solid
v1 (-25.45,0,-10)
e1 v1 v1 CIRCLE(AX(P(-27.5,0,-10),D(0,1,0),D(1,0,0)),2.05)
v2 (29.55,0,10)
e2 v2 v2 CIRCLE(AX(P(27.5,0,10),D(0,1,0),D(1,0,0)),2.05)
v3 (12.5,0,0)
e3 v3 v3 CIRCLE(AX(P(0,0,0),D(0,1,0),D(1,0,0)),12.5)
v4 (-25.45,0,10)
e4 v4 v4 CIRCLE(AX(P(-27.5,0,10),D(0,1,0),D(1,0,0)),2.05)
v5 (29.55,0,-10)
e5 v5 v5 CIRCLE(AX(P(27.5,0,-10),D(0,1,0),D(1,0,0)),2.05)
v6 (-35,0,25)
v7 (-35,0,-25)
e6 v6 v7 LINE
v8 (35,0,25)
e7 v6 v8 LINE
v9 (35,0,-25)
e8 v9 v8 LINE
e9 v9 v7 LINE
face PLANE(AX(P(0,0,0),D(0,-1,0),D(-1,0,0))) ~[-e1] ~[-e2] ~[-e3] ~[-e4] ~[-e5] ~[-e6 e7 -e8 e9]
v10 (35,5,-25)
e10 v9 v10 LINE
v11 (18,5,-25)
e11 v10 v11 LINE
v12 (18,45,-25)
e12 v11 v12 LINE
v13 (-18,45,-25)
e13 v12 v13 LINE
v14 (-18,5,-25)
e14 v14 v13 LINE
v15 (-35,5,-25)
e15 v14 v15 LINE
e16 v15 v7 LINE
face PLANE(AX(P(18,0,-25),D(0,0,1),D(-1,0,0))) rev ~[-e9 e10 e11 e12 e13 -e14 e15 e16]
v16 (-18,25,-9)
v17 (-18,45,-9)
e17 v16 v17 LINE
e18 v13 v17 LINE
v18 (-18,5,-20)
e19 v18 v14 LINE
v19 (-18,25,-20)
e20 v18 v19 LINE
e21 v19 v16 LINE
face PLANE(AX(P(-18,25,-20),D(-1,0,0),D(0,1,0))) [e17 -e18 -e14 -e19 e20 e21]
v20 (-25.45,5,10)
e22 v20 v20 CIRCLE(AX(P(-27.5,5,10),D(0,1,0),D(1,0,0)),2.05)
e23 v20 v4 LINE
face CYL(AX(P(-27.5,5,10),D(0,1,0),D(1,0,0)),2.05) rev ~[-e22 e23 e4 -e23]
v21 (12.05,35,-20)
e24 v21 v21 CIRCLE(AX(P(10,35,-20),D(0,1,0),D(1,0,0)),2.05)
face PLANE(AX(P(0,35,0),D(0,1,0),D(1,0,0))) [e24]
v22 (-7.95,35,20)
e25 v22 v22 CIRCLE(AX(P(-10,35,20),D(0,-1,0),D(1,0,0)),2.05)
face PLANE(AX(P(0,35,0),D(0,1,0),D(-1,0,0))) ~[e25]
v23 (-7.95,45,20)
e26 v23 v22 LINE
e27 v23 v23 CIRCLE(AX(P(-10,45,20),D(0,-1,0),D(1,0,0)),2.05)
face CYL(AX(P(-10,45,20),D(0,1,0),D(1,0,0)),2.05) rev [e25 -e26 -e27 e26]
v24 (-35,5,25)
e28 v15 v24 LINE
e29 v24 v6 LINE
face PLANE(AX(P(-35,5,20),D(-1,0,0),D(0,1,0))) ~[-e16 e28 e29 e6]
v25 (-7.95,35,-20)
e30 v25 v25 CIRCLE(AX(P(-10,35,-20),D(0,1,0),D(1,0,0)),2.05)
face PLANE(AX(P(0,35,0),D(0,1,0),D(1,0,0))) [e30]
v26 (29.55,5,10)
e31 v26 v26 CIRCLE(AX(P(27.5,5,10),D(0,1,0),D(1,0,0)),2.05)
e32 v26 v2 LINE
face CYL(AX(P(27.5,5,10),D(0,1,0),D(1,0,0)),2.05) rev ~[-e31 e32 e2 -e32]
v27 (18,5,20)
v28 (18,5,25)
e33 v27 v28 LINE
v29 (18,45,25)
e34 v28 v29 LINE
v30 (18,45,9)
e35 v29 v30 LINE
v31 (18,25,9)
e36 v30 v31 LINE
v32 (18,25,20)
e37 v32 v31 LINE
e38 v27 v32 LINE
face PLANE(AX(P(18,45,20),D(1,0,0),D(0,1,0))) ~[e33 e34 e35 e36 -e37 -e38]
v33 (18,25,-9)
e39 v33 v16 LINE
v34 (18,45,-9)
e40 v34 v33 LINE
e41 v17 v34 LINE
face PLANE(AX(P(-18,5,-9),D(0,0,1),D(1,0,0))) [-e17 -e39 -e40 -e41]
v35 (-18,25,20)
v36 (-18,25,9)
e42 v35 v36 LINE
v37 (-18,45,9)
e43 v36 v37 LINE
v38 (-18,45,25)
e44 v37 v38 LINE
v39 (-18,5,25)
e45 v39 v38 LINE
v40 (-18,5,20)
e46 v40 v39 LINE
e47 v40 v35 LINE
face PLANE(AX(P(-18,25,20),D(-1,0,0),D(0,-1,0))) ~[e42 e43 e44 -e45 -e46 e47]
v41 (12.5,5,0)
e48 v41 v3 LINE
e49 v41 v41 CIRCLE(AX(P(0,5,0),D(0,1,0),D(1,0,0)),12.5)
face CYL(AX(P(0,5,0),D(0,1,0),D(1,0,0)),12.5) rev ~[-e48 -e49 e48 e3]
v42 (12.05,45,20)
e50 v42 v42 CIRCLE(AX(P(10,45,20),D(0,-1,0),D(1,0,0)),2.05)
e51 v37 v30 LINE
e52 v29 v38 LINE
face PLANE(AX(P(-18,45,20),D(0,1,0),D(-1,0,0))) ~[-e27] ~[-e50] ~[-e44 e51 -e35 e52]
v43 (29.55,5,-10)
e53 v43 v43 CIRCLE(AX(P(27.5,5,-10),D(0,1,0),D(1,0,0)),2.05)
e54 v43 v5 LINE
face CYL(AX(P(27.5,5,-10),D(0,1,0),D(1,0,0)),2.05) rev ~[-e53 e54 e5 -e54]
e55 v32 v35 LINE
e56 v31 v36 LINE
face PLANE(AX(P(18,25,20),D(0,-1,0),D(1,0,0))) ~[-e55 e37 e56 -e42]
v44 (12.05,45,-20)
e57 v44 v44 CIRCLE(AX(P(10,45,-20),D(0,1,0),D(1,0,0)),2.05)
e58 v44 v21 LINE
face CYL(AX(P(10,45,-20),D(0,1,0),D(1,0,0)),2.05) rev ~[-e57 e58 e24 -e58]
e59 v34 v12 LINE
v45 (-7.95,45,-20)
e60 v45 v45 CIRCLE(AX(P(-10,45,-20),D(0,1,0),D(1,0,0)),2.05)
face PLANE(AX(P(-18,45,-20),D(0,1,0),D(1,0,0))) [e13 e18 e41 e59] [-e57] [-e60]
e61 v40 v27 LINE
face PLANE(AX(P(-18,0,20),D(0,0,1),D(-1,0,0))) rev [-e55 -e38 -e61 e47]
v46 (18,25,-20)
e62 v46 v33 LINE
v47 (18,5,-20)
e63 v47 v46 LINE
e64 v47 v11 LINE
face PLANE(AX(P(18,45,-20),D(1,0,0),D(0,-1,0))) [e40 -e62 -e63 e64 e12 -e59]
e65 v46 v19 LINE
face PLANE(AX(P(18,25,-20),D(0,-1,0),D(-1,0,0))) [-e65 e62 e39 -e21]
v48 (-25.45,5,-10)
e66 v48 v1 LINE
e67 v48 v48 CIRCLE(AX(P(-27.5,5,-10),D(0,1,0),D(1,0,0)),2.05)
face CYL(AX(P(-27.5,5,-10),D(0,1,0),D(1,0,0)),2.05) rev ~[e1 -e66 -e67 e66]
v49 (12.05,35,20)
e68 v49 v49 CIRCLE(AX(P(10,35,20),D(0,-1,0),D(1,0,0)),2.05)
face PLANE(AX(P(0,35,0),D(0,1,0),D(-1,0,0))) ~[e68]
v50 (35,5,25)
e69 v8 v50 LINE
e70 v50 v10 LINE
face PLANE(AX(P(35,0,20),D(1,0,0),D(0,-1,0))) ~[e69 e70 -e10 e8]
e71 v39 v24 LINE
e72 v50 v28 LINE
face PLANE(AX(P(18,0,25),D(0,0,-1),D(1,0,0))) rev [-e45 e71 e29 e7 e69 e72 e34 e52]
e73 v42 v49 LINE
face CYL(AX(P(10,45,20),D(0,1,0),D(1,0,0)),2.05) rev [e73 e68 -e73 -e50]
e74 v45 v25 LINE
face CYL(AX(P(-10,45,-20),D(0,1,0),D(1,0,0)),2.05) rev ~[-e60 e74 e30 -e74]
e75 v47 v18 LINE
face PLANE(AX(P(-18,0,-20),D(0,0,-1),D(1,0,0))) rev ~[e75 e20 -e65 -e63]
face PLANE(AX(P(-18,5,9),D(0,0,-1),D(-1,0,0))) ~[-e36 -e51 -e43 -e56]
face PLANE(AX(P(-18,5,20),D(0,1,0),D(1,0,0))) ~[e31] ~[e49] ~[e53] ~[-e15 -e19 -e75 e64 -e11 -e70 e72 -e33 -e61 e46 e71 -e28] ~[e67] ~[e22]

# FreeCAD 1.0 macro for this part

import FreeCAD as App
import Part
import Sketcher

V = App.Vector


def add_polygon(sketch, points):
    """Adds a closed chain of lines whose ends are joined by coincident constraints."""
    first, n = sketch.GeometryCount, len(points)
    for a, b in zip(points, points[1:] + points[:1]):
        sketch.addGeometry(Part.LineSegment(App.Vector(*a, 0), App.Vector(*b, 0)), False)
    for i in range(n):
        sketch.addConstraint(Sketcher.Constraint("Coincident", first + i, 2, first + (i + 1) % n, 1))

doc = App.newDocument("Part")
params = doc.addObject("Spreadsheet::Sheet", "Params")
for row, (alias, value) in enumerate([
    ("sketch1_width", "70 mm"),
    ("sketch1_height", "40 mm"),
    ("pad1_length", "5 mm"),
    ("sketch2_diameter", "4.1 mm"),
    ("pocket1_length", "5 mm"),
    ("sketch3_diameter", "25 mm"),
    ("pocket2_length", "5 mm"),
    ("sketch4_width", "36 mm"),
    ("sketch4_height", "5 mm"),
    ("pad2_length", "45 mm"),
    ("sketch5_height", "20 mm"),
    ("sketch5_width", "36 mm"),
    ("pad3_length", "11 mm"),
    ("sketch6_width", "17 mm"),
    ("sketch6_height", "5 mm"),
    ("pad4_length", "5 mm"),
    ("sketch7_diameter", "4.1 mm"),
    ("pocket3_length", "10 mm"),
], start=1):
    params.set(f"A{row}", alias)
    params.set(f"B{row}", "=" + value)
    params.setAlias(f"B{row}", alias)

body = doc.addObject("PartDesign::Body", "Body")

# Sketch on XZ plane
sketch1 = body.newObject("Sketcher::SketchObject", "Sketch")
sketch1.AttachmentSupport = (doc.getObject("XZ_Plane"), [""])
sketch1.MapMode = "FlatFace"
add_polygon(sketch1, [(-35, -20), (-35, 20), (35, 20), (35, -20)])  # lines 0-3
sketch1.addConstraint(Sketcher.Constraint("Vertical", 0))
sketch1.addConstraint(Sketcher.Constraint("Horizontal", 1))
sketch1.addConstraint(Sketcher.Constraint("Vertical", 2))
sketch1.addConstraint(Sketcher.Constraint("Horizontal", 3))
sketch1.addConstraint(Sketcher.Constraint("Symmetric", 0, 2, 2, 2, -1, 1))
sketch1.addConstraint(Sketcher.Constraint("DistanceX", 1, 1, 1, 2, 70.0))
sketch1.addConstraint(Sketcher.Constraint("DistanceY", 0, 1, 0, 2, 40.0))
sketch1.setExpression("Constraints[9]", "Params.sketch1_width")
sketch1.setExpression("Constraints[10]", "Params.sketch1_height")
pad1 = body.newObject("PartDesign::Pad", "Pad")
pad1.Profile = sketch1
pad1.setExpression("Length", "Params.pad1_length")
pad1.Reversed = True

# Sketch on XZ plane
sketch2 = body.newObject("Sketcher::SketchObject", "Sketch001")
sketch2.AttachmentSupport = (doc.getObject("XZ_Plane"), [""])
sketch2.MapMode = "FlatFace"
sketch2.AttachmentOffset = App.Placement(V(0, 0, -5), App.Rotation())
sketch2.addGeometry(Part.Circle(V(27.5, 10, 0), V(0, 0, 1), 2), False)
sketch2.addGeometry(Part.Circle(V(27.5, -10, 0), V(0, 0, 1), 2), False)
sketch2.addGeometry(Part.Circle(V(-27.5, -10, 0), V(0, 0, 1), 2), False)
sketch2.addGeometry(Part.Circle(V(-27.5, 10, 0), V(0, 0, 1), 2), False)
sketch2.addConstraint(Sketcher.Constraint("Equal", 0, 1))
sketch2.addConstraint(Sketcher.Constraint("Equal", 1, 2))
sketch2.addConstraint(Sketcher.Constraint("Equal", 2, 3))
sketch2.addConstraint(Sketcher.Constraint("Symmetric", 0, 3, 2, 3, -1, 1))
sketch2.addConstraint(Sketcher.Constraint("Symmetric", 1, 3, 3, 3, -1, 1))
sketch2.addConstraint(Sketcher.Constraint("Symmetric", 1, 3, 2, 3, -2))
sketch2.addConstraint(Sketcher.Constraint("Diameter", 0, 4.1))
sketch2.addConstraint(Sketcher.Constraint("DistanceY", -1, 1, 0, 3, 10.0))
sketch2.addConstraint(Sketcher.Constraint("DistanceX", -1, 1, 0, 3, 27.5))
sketch2.setExpression("Constraints[6]", "Params.sketch2_diameter")
pocket1 = body.newObject("PartDesign::Pocket", "Pocket")
pocket1.Profile = sketch2
pocket1.setExpression("Length", "Params.pocket1_length")
pocket1.Reversed = True

# Sketch on XZ plane
sketch3 = body.newObject("Sketcher::SketchObject", "Sketch002")
sketch3.AttachmentSupport = (doc.getObject("XZ_Plane"), [""])
sketch3.MapMode = "FlatFace"
sketch3.AttachmentOffset = App.Placement(V(0, 0, -5), App.Rotation())
sketch3.addGeometry(Part.Circle(V(0, 0, 0), V(0, 0, 1), 12), False)
sketch3.addConstraint(Sketcher.Constraint("Coincident", 0, 3, -1, 1))
sketch3.addConstraint(Sketcher.Constraint("Diameter", 0, 25.0))
sketch3.setExpression("Constraints[1]", "Params.sketch3_diameter")
pocket2 = body.newObject("PartDesign::Pocket", "Pocket001")
pocket2.Profile = sketch3
pocket2.setExpression("Length", "Params.pocket2_length")
pocket2.Reversed = True

# Sketch on XZ plane
sketch4 = body.newObject("Sketcher::SketchObject", "Sketch003")
sketch4.AttachmentSupport = (doc.getObject("XZ_Plane"), [""])
sketch4.MapMode = "FlatFace"
add_polygon(sketch4, [(-18, -25), (18, -25), (18, -20), (-18, -20)])  # lines 0-3
sketch4.addConstraint(Sketcher.Constraint("Horizontal", 0))
sketch4.addConstraint(Sketcher.Constraint("Vertical", 1))
sketch4.addConstraint(Sketcher.Constraint("Horizontal", 2))
sketch4.addConstraint(Sketcher.Constraint("Vertical", 3))
sketch4.addConstraint(Sketcher.Constraint("DistanceX", 0, 1, 0, 2, 36.0))
sketch4.addConstraint(Sketcher.Constraint("DistanceY", 1, 1, 1, 2, 5.0))
sketch4.addConstraint(Sketcher.Constraint("DistanceX", -1, 1, 0, 2, 18.0))
sketch4.addConstraint(Sketcher.Constraint("DistanceY", 0, 2, -1, 1, 25.0))
sketch4.setExpression("Constraints[8]", "Params.sketch4_width")
sketch4.setExpression("Constraints[9]", "Params.sketch4_height")
pad2 = body.newObject("PartDesign::Pad", "Pad001")
pad2.Profile = sketch4
pad2.setExpression("Length", "Params.pad2_length")
pad2.Reversed = True

# Sketch on XY plane
sketch5 = body.newObject("Sketcher::SketchObject", "Sketch004")
sketch5.AttachmentSupport = (doc.getObject("XY_Plane"), [""])
sketch5.MapMode = "FlatFace"
sketch5.AttachmentOffset = App.Placement(V(0, 0, -20), App.Rotation())
add_polygon(sketch5, [(18, 45), (-18, 45), (-18, 25), (18, 25)])  # lines 0-3
sketch5.addConstraint(Sketcher.Constraint("Horizontal", 0))
sketch5.addConstraint(Sketcher.Constraint("Vertical", 1))
sketch5.addConstraint(Sketcher.Constraint("Horizontal", 2))
sketch5.addConstraint(Sketcher.Constraint("Vertical", 3))
sketch5.addConstraint(Sketcher.Constraint("DistanceY", 1, 2, 1, 1, 20.0))
sketch5.addConstraint(Sketcher.Constraint("DistanceX", 0, 2, 0, 1, 36.0))
sketch5.addConstraint(Sketcher.Constraint("DistanceX", 0, 2, -1, 1, 18.0))
sketch5.addConstraint(Sketcher.Constraint("DistanceY", -1, 1, 0, 2, 45.0))
sketch5.setExpression("Constraints[8]", "Params.sketch5_height")
sketch5.setExpression("Constraints[9]", "Params.sketch5_width")
pad3 = body.newObject("PartDesign::Pad", "Pad002")
pad3.Profile = sketch5
pad3.setExpression("Length", "Params.pad3_length")

# Sketch on XY plane
sketch6 = body.newObject("Sketcher::SketchObject", "Sketch005")
sketch6.AttachmentSupport = (doc.getObject("XY_Plane"), [""])
sketch6.MapMode = "FlatFace"
sketch6.AttachmentOffset = App.Placement(V(0, 0, -20), App.Rotation())
add_polygon(sketch6, [(18, 5), (35, 5), (35, 0), (18, 0)])  # lines 0-3
add_polygon(sketch6, [(-35, 5), (-18, 5), (-18, 0), (-35, 0)])  # lines 4-7
sketch6.addConstraint(Sketcher.Constraint("Horizontal", 0))
sketch6.addConstraint(Sketcher.Constraint("Vertical", 1))
sketch6.addConstraint(Sketcher.Constraint("Horizontal", 2))
sketch6.addConstraint(Sketcher.Constraint("Vertical", 3))
sketch6.addConstraint(Sketcher.Constraint("Horizontal", 4))
sketch6.addConstraint(Sketcher.Constraint("Vertical", 5))
sketch6.addConstraint(Sketcher.Constraint("Horizontal", 6))
sketch6.addConstraint(Sketcher.Constraint("Vertical", 7))
sketch6.addConstraint(Sketcher.Constraint("Symmetric", 2, 2, 5, 2, -1, 1))
sketch6.addConstraint(Sketcher.Constraint("Symmetric", 1, 2, 6, 2, -2))
sketch6.addConstraint(Sketcher.Constraint("Horizontal", 3, 2, 4, 2))
sketch6.addConstraint(Sketcher.Constraint("DistanceX", 0, 1, 0, 2, 17.0))
sketch6.addConstraint(Sketcher.Constraint("DistanceY", 1, 2, 1, 1, 5.0))
sketch6.addConstraint(Sketcher.Constraint("DistanceX", -1, 1, 0, 2, 35.0))
sketch6.setExpression("Constraints[19]", "Params.sketch6_width")
sketch6.setExpression("Constraints[20]", "Params.sketch6_height")
pad4 = body.newObject("PartDesign::Pad", "Pad003")
pad4.Profile = sketch6
pad4.setExpression("Length", "Params.pad4_length")
pad4.Reversed = True

# Sketch on XZ plane
sketch7 = body.newObject("Sketcher::SketchObject", "Sketch006")
sketch7.AttachmentSupport = (doc.getObject("XZ_Plane"), [""])
sketch7.MapMode = "FlatFace"
sketch7.AttachmentOffset = App.Placement(V(0, 0, -45), App.Rotation())
sketch7.addGeometry(Part.Circle(V(-10, -20, 0), V(0, 0, 1), 2), False)
sketch7.addGeometry(Part.Circle(V(10, -20, 0), V(0, 0, 1), 2), False)
sketch7.addConstraint(Sketcher.Constraint("Equal", 0, 1))
sketch7.addConstraint(Sketcher.Constraint("Symmetric", 0, 3, 1, 3, -2))
sketch7.addConstraint(Sketcher.Constraint("Diameter", 0, 4.1))
sketch7.addConstraint(Sketcher.Constraint("DistanceX", 0, 3, -1, 1, 10.0))
sketch7.addConstraint(Sketcher.Constraint("DistanceY", 0, 3, -1, 1, 20.0))
sketch7.setExpression("Constraints[2]", "Params.sketch7_diameter")
pocket3 = body.newObject("PartDesign::Pocket", "Pocket002")
pocket3.Profile = sketch7
pocket3.setExpression("Length", "Params.pocket3_length")
pocket3.Reversed = True
doc.recompute()

mirrored = body.newObject("PartDesign::Mirrored", "Mirrored")
mirrored.Originals = [pad2, pad3, pad4, pocket3]
mirrored.MirrorPlane = (doc.getObject("XY_Plane"), [""])
body.Tip = mirrored

doc.recompute()
